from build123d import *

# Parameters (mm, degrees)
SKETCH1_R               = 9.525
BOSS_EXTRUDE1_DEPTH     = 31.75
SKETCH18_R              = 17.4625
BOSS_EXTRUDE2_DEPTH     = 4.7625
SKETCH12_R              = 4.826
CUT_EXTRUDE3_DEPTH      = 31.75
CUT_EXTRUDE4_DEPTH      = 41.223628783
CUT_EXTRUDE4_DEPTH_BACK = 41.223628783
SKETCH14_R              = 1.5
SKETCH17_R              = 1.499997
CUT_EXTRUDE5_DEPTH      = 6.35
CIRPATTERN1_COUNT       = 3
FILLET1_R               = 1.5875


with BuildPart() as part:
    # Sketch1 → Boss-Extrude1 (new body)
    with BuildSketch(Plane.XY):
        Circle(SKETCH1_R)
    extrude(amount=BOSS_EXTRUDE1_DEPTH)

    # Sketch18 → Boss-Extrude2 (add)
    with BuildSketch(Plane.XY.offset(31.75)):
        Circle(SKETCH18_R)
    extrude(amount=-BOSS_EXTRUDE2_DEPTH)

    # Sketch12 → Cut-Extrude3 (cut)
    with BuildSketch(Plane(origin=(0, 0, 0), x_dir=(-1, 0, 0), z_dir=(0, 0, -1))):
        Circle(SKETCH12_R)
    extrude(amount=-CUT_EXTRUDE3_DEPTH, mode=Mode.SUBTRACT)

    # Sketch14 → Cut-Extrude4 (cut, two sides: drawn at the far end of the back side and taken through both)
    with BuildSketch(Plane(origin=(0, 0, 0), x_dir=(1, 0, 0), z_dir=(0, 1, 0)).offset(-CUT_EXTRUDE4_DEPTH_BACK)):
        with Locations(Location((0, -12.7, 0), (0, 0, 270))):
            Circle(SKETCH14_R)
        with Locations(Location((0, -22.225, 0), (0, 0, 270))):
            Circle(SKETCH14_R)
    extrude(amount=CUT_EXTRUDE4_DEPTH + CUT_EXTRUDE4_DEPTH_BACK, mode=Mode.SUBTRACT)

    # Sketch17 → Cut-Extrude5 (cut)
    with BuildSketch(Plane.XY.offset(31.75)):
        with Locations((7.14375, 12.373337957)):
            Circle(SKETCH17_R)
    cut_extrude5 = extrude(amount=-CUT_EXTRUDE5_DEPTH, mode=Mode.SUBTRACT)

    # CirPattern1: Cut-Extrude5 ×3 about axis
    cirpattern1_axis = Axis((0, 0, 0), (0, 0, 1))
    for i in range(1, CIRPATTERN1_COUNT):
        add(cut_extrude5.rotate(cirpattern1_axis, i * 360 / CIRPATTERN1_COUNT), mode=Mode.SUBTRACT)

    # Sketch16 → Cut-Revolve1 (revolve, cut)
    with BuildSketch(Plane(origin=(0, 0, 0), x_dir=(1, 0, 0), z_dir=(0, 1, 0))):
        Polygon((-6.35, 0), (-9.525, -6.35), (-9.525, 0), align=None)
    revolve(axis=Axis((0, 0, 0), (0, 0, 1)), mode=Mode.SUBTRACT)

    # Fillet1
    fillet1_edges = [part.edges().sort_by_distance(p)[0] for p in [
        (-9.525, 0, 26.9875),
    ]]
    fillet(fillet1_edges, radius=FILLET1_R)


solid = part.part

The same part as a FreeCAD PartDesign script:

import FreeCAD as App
import Part
import Sketcher
from FreeCAD import Vector
Q = App.Units.Quantity


def edges_at(feature, points):
    """Names of the edges that pass closest to the given points."""
    edges = feature.Shape.Edges
    near = lambda p: min(range(len(edges)), key=lambda i: edges[i].distToShape(Part.Vertex(*p))[0])
    return sorted({f"Edge{near(p) + 1}" for p in points})

doc = App.newDocument("Part")
body = doc.addObject("PartDesign::Body", "Body")

# Sketch on XY plane
sketch1 = body.newObject("Sketcher::SketchObject", "Sketch")
sketch1.AttachmentSupport = (doc.getObject("XY_Plane"), [""])
sketch1.MapMode = "FlatFace"
sketch1.addGeometry(Part.Circle(Vector(0, 0, 0), Vector(0, 0, 1), 10), False)
sketch1.addConstraint(Sketcher.Constraint("Coincident", 0, 3, -1, 1))
sketch1.addConstraint(Sketcher.Constraint("Diameter", 0, Q("0.75 in")))
pad1 = body.newObject("PartDesign::Pad", "Pad")
pad1.Profile = sketch1
pad1.Length = Q("1.25 in")

# Sketch on XY plane
sketch2 = body.newObject("Sketcher::SketchObject", "Sketch001")
sketch2.AttachmentSupport = (doc.getObject("XY_Plane"), [""])
sketch2.MapMode = "FlatFace"
sketch2.AttachmentOffset = App.Placement(Vector(0, 0, 1.25 * 25.4), App.Rotation())
sketch2.addGeometry(Part.Circle(Vector(0, 0, 0), Vector(0, 0, 1), 17), False)
sketch2.addConstraint(Sketcher.Constraint("Coincident", 0, 3, -1, 1))
sketch2.addConstraint(Sketcher.Constraint("Diameter", 0, Q("1.375 in")))
pad2 = body.newObject("PartDesign::Pad", "Pad001")
pad2.Profile = sketch2
pad2.Length = Q("0.1875 in")
pad2.Reversed = True

# Sketch on XY plane
sketch3 = body.newObject("Sketcher::SketchObject", "Sketch002")
sketch3.AttachmentSupport = (doc.getObject("XY_Plane"), [""])
sketch3.MapMode = "FlatFace"
sketch3.addGeometry(Part.Circle(Vector(0, 0, 0), Vector(0, 0, 1), 4.8), False)
sketch3.addConstraint(Sketcher.Constraint("Coincident", 0, 3, -1, 1))
sketch3.addConstraint(Sketcher.Constraint("Diameter", 0, Q("0.38 in")))
pocket1 = body.newObject("PartDesign::Pocket", "Pocket")
pocket1.Profile = sketch3
pocket1.Length = Q("1.25 in")
pocket1.Reversed = True

# Sketch on XZ plane
sketch4 = body.newObject("Sketcher::SketchObject", "Sketch003")
sketch4.AttachmentSupport = (doc.getObject("XZ_Plane"), [""])
sketch4.MapMode = "FlatFace"
sketch4.addGeometry(Part.Circle(Vector(0, 12.7, 0), Vector(0, 0, 1), 1.5), False)
sketch4.addGeometry(Part.Circle(Vector(0, 22.2, 0), Vector(0, 0, 1), 1.5), False)
sketch4.addConstraint(Sketcher.Constraint("Equal", 0, 1))
sketch4.addConstraint(Sketcher.Constraint("PointOnObject", 0, 3, -2))
sketch4.addConstraint(Sketcher.Constraint("PointOnObject", 1, 3, -2))
sketch4.addConstraint(Sketcher.Constraint("DistanceY", -1, 1, 0, 3, Q("0.5 in")))
sketch4.addConstraint(Sketcher.Constraint("Diameter", 0, 3.0))
sketch4.addConstraint(Sketcher.Constraint("DistanceY", -1, 1, 1, 3, Q("0.875 in")))
pocket2 = body.newObject("PartDesign::Pocket", "Pocket001")
pocket2.Profile = sketch4
pocket2.Type = "ThroughAll"
pocket2.Midplane = True

# Sketch on XY plane
sketch5 = body.newObject("Sketcher::SketchObject", "Sketch004")
sketch5.AttachmentSupport = (doc.getObject("XY_Plane"), [""])
sketch5.MapMode = "FlatFace"
sketch5.AttachmentOffset = App.Placement(Vector(0, 0, 1.25 * 25.4), App.Rotation())
sketch5.addGeometry(Part.Circle(Vector(7.1, 12.4, 0), Vector(0, 0, 1), 1.5), False)
sketch5.addConstraint(Sketcher.Constraint("DistanceX", -1, 1, 0, 3, Q("0.28125 in")))
sketch5.addConstraint(Sketcher.Constraint("Diameter", 0, 2.999994))
sketch5.addConstraint(Sketcher.Constraint("DistanceY", -1, 1, 0, 3, 12.373338))
pocket3 = body.newObject("PartDesign::Pocket", "Pocket002")
pocket3.Profile = sketch5
pocket3.Length = Q("0.25 in")
doc.recompute()

polarpattern = body.newObject("PartDesign::PolarPattern", "PolarPattern")
polarpattern.Originals = [pocket3]
polarpattern.Axis = (doc.getObject("Z_Axis"), [""])
polarpattern.Angle = 360
polarpattern.Occurrences = 3
body.Tip = polarpattern

# Sketch on XZ plane
sketch6 = body.newObject("Sketcher::SketchObject", "Sketch005")
sketch6.AttachmentSupport = (doc.getObject("XZ_Plane"), [""])
sketch6.MapMode = "FlatFace"
sketch6.addGeometry(Part.LineSegment(Vector(-9.5, 6.3, 0), Vector(-6.3, 0, 0)), False)
sketch6.addGeometry(Part.LineSegment(Vector(-6.3, 0, 0), Vector(-9.5, 0, 0)), False)
sketch6.addGeometry(Part.LineSegment(Vector(-9.5, 0, 0), Vector(-9.5, 6.3, 0)), False)
sketch6.addConstraint(Sketcher.Constraint("Coincident", 0, 2, 1, 1))
sketch6.addConstraint(Sketcher.Constraint("Coincident", 1, 2, 2, 1))
sketch6.addConstraint(Sketcher.Constraint("Coincident", 2, 2, 0, 1))
sketch6.addConstraint(Sketcher.Constraint("Horizontal", 1))
sketch6.addConstraint(Sketcher.Constraint("Vertical", 2))
sketch6.addConstraint(Sketcher.Constraint("PointOnObject", 0, 2, -1))
sketch6.addConstraint(Sketcher.Constraint("DistanceY", 2, 1, 2, 2, Q("0.25 in")))
sketch6.addConstraint(Sketcher.Constraint("DistanceX", 1, 2, 1, 1, Q("0.125 in")))
sketch6.addConstraint(Sketcher.Constraint("DistanceX", 0, 2, -1, 1, Q("0.25 in")))
groove = body.newObject("PartDesign::Groove", "Groove")
groove.Profile = sketch6
groove.ReferenceAxis = (sketch6, ["V_Axis"])
groove.Angle = 360
doc.recompute()

fillet = body.newObject("PartDesign::Fillet", "Fillet")
fillet.Base = (groove, edges_at(groove, [(-9.525, 0, 26.988)]))
fillet.Radius = Q("0.0625 in")

doc.recompute()
